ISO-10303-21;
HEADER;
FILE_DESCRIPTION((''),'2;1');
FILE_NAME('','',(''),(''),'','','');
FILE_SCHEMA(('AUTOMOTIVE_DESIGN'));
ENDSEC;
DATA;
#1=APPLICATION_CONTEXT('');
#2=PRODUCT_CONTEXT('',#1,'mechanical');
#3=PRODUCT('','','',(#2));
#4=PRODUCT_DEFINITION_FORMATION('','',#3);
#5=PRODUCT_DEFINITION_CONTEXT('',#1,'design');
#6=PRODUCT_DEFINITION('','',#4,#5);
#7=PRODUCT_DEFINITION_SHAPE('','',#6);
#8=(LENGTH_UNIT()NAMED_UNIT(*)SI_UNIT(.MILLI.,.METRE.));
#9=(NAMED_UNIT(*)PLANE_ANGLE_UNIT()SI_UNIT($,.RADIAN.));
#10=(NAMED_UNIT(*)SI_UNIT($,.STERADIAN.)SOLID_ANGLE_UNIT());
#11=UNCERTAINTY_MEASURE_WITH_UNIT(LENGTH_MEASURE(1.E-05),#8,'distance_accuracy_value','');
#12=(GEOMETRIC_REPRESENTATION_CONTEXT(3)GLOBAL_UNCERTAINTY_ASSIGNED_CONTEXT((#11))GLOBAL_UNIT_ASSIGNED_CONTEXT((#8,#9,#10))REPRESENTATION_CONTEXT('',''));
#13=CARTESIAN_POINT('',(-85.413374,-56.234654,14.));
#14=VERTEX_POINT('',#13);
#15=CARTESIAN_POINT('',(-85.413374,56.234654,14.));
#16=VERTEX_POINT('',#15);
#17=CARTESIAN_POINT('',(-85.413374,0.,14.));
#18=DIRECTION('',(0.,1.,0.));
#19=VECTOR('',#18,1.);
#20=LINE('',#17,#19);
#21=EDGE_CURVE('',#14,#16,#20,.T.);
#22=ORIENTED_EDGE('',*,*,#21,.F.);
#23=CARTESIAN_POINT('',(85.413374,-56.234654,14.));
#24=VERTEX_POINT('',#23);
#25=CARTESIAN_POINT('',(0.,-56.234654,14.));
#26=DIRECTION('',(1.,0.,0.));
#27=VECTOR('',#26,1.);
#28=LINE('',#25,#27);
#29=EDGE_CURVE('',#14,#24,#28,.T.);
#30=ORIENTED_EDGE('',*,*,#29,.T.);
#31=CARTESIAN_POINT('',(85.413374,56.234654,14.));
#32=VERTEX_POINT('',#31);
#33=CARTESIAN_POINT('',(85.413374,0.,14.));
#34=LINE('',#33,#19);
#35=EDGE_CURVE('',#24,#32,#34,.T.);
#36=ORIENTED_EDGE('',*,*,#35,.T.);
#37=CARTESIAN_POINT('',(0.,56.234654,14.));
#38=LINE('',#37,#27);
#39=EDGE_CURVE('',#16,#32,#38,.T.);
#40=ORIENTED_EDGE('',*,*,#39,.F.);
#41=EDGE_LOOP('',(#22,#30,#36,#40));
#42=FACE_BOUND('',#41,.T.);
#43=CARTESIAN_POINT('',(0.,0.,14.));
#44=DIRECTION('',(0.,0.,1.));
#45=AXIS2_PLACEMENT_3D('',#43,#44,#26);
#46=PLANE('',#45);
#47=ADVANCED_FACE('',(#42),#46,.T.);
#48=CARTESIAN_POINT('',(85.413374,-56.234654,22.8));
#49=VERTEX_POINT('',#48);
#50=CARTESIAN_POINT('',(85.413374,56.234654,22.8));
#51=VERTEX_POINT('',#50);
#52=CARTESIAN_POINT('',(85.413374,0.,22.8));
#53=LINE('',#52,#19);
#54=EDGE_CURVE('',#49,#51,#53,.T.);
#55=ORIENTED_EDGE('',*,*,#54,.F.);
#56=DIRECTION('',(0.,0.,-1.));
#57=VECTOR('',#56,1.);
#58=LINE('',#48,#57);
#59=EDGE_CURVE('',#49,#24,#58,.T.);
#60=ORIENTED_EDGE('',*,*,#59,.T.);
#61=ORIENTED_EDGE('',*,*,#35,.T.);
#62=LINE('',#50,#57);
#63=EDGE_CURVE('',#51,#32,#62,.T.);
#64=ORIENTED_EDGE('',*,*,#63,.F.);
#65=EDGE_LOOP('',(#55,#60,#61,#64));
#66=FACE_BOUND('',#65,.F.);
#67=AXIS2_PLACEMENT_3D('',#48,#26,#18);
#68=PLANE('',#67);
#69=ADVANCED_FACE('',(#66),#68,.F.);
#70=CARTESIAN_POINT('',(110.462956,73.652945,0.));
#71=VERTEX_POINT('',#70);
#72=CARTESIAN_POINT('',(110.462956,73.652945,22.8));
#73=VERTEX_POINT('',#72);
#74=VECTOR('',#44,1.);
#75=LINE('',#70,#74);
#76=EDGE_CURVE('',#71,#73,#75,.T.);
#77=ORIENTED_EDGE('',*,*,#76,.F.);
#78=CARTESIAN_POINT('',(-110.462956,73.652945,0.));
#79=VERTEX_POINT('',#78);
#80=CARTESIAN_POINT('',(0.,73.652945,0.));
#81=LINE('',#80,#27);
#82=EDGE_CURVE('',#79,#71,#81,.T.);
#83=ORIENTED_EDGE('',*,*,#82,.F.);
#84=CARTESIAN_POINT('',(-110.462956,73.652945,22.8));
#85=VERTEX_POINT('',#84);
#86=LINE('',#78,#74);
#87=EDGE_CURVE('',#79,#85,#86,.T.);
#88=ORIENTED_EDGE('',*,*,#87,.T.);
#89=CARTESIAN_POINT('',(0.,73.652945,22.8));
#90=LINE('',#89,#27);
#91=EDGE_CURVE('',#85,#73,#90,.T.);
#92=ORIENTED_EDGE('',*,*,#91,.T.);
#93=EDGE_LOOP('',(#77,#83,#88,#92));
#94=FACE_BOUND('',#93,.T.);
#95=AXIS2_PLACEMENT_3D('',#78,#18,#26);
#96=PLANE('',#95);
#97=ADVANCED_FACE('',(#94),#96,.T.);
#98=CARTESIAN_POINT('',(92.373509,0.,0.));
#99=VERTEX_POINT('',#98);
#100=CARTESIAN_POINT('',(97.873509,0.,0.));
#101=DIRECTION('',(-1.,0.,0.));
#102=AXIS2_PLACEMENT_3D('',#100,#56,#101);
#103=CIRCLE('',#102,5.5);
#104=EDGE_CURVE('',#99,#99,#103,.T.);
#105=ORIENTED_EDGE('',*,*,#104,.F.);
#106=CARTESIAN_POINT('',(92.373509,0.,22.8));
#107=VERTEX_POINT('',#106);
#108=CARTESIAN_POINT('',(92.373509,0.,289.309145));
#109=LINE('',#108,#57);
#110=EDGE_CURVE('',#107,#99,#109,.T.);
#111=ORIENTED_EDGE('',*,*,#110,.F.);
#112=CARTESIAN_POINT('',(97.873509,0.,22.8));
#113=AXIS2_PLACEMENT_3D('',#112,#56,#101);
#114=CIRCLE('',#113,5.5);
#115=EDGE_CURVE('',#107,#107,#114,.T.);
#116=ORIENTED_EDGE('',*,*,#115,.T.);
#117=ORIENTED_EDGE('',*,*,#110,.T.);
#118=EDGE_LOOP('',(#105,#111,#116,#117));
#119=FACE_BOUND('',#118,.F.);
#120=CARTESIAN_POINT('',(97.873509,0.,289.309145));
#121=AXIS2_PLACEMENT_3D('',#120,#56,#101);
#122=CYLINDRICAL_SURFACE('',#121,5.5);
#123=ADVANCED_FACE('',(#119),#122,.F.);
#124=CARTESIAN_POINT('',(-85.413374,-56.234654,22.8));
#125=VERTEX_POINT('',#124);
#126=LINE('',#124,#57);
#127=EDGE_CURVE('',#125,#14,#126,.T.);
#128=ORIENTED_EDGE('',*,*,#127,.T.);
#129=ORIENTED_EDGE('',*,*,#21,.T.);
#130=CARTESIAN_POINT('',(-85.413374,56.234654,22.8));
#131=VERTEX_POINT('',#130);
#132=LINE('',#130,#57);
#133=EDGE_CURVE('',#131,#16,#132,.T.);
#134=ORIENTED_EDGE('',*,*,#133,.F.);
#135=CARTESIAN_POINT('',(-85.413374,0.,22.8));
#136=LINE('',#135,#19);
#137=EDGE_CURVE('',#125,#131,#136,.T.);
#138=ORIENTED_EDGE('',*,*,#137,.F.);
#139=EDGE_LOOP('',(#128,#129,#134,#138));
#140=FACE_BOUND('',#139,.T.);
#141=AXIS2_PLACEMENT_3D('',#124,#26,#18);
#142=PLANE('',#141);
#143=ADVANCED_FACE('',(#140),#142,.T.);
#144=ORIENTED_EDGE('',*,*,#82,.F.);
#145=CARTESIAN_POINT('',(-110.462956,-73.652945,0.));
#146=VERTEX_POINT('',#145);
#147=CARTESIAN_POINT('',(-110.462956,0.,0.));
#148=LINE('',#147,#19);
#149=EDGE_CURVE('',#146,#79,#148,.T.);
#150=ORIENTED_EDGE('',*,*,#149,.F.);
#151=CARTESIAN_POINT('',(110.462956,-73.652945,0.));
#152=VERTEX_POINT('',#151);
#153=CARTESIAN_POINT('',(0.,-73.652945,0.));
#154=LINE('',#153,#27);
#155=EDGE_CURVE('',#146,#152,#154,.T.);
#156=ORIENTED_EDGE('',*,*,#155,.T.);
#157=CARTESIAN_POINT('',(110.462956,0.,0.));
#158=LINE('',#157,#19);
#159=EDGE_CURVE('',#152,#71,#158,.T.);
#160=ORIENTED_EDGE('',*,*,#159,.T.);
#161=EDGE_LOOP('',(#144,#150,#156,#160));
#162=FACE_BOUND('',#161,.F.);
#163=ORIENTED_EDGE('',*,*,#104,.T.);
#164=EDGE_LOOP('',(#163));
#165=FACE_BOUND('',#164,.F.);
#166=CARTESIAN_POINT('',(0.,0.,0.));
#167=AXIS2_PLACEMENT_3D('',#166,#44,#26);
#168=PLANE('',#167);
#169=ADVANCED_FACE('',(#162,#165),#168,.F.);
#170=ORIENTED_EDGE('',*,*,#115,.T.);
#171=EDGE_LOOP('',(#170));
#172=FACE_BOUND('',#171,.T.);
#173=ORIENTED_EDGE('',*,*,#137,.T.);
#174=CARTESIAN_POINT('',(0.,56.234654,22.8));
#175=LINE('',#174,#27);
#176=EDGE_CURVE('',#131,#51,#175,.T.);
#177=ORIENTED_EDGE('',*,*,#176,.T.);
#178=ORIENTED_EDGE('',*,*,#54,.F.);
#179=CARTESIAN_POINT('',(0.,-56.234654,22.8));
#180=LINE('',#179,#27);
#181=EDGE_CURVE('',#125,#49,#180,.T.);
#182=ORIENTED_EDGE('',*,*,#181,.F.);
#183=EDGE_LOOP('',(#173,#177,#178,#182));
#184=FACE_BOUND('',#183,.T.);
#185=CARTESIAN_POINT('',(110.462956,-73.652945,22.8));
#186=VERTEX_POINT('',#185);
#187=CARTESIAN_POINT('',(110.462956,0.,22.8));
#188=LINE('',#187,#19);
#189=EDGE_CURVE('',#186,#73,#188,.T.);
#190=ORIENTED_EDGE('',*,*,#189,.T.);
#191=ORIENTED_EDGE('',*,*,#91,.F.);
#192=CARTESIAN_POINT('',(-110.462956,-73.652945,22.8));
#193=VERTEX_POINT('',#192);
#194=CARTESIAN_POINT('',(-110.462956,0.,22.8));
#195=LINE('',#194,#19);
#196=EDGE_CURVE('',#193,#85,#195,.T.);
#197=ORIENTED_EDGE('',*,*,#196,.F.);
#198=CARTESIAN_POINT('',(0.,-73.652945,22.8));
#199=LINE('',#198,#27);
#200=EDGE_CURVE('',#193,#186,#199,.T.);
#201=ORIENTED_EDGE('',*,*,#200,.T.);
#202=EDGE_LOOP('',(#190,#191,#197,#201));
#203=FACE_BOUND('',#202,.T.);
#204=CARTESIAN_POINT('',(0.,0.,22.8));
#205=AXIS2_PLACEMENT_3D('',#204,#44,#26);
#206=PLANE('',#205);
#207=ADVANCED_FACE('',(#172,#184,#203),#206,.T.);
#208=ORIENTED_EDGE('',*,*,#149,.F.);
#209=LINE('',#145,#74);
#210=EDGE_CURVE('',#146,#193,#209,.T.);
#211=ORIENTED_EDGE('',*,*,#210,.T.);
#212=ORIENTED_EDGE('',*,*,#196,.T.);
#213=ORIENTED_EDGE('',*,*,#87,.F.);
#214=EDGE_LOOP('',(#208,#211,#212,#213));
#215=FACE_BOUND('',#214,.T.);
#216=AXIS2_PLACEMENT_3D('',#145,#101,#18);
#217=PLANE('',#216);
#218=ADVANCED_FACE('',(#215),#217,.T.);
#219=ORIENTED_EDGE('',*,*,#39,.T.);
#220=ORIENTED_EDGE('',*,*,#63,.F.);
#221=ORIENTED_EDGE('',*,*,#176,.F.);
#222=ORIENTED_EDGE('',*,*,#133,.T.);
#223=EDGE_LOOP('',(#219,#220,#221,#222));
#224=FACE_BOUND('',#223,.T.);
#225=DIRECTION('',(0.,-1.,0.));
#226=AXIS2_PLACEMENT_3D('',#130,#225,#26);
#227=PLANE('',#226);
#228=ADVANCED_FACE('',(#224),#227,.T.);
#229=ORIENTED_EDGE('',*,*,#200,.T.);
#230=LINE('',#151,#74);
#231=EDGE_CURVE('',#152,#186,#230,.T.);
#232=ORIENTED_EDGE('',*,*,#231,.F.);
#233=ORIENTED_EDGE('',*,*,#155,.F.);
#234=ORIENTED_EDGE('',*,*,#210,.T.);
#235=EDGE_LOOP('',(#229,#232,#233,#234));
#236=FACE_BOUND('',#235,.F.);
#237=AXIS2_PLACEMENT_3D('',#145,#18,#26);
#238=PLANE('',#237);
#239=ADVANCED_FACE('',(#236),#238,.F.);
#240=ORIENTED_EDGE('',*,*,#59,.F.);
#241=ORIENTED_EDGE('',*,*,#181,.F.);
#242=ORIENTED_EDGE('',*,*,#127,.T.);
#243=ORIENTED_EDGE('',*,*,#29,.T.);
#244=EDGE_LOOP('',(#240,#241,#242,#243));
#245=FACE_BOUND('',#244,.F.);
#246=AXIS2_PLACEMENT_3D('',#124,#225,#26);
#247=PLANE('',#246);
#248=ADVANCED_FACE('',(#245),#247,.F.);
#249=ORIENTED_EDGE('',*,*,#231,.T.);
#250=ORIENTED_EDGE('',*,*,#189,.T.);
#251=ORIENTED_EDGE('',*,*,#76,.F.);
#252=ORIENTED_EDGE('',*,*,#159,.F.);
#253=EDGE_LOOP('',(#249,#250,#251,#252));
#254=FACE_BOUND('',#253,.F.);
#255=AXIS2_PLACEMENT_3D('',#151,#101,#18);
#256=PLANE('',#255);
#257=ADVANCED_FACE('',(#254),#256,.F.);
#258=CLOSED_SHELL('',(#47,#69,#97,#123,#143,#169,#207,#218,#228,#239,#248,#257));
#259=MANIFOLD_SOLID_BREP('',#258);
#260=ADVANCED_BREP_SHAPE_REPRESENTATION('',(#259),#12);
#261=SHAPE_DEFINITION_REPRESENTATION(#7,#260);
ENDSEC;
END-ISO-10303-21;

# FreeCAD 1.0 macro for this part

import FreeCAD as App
import Part
import Sketcher
from FreeCAD import Vector
Q = App.Units.Quantity

doc = App.newDocument("Part")
params = doc.addObject("Spreadsheet::Sheet", "Params")
for row, (alias, value) in enumerate([
    ("pad1_length", "22.8 mm"),
    ("pocket1_length", "8.8 mm"),
    ("sketch3_diameter", "11 mm"),
    ("hole_diameter", "11 mm"),
], start=1):
    params.set(f"A{row}", alias)
    params.set(f"B{row}", "=" + value)
    params.setAlias(f"B{row}", alias)

body = doc.addObject("PartDesign::Body", "Body")

# Sketch on XY plane
sketch1 = doc.addObject("Sketcher::SketchObject", "Sketch")
body.addObject(sketch1)
sketch1.AttachmentSupport = (doc.XY_Plane, [""])
sketch1.MapMode = "FlatFace"
sketch1.addGeometry(Part.LineSegment(Vector(-110, 74, 0), Vector(-110, -74, 0)), False)
sketch1.addGeometry(Part.LineSegment(Vector(-110, -74, 0), Vector(110, -74, 0)), False)
sketch1.addGeometry(Part.LineSegment(Vector(110, -74, 0), Vector(110, 74, 0)), False)
sketch1.addGeometry(Part.LineSegment(Vector(110, 74, 0), Vector(-110, 74, 0)), False)
sketch1.addConstraint(Sketcher.Constraint("Coincident", 0, 2, 1, 1))
sketch1.addConstraint(Sketcher.Constraint("Coincident", 1, 2, 2, 1))
sketch1.addConstraint(Sketcher.Constraint("Coincident", 2, 2, 3, 1))
sketch1.addConstraint(Sketcher.Constraint("Coincident", 3, 2, 0, 1))
sketch1.addConstraint(Sketcher.Constraint("Vertical", 0))
sketch1.addConstraint(Sketcher.Constraint("Horizontal", 1))
sketch1.addConstraint(Sketcher.Constraint("Vertical", 2))
sketch1.addConstraint(Sketcher.Constraint("Horizontal", 3))
sketch1.addConstraint(Sketcher.Constraint("Symmetric", 0, 2, 2, 2, -1, 1))
sketch1.addConstraint(Sketcher.Constraint("DistanceY", 0, 2, 0, 1, Q("147.305891 mm")))
sketch1.addConstraint(Sketcher.Constraint("DistanceX", 1, 1, 1, 2, Q("220.925912 mm")))
pad1 = doc.addObject("PartDesign::Pad", "Pad")
body.addObject(pad1)
pad1.Profile = sketch1
pad1.setExpression("Length", "Params.pad1_length")

# Sketch on XY plane
sketch2 = doc.addObject("Sketcher::SketchObject", "Sketch001")
body.addObject(sketch2)
sketch2.AttachmentSupport = (doc.XY_Plane, [""])
sketch2.MapMode = "FlatFace"
sketch2.AttachmentOffset = App.Placement(Vector(0, 0, 22.8), App.Rotation())
sketch2.addGeometry(Part.LineSegment(Vector(-85, 56, 0), Vector(-85, -56, 0)), False)
sketch2.addGeometry(Part.LineSegment(Vector(-85, -56, 0), Vector(85, -56, 0)), False)
sketch2.addGeometry(Part.LineSegment(Vector(85, -56, 0), Vector(85, 56, 0)), False)
sketch2.addGeometry(Part.LineSegment(Vector(85, 56, 0), Vector(-85, 56, 0)), False)
sketch2.addConstraint(Sketcher.Constraint("Coincident", 0, 2, 1, 1))
sketch2.addConstraint(Sketcher.Constraint("Coincident", 1, 2, 2, 1))
sketch2.addConstraint(Sketcher.Constraint("Coincident", 2, 2, 3, 1))
sketch2.addConstraint(Sketcher.Constraint("Coincident", 3, 2, 0, 1))
sketch2.addConstraint(Sketcher.Constraint("Vertical", 0))
sketch2.addConstraint(Sketcher.Constraint("Horizontal", 1))
sketch2.addConstraint(Sketcher.Constraint("Vertical", 2))
sketch2.addConstraint(Sketcher.Constraint("Horizontal", 3))
sketch2.addConstraint(Sketcher.Constraint("Symmetric", 0, 2, 2, 2, -1, 1))
sketch2.addConstraint(Sketcher.Constraint("DistanceX", 1, 1, 1, 2, Q("170.826748 mm")))
sketch2.addConstraint(Sketcher.Constraint("DistanceY", 0, 2, 0, 1, Q("112.469309 mm")))
pocket1 = doc.addObject("PartDesign::Pocket", "Pocket")
body.addObject(pocket1)
pocket1.Profile = sketch2
pocket1.setExpression("Length", "Params.pocket1_length")

# Sketch on XY plane
sketch3 = doc.addObject("Sketcher::SketchObject", "Sketch002")
body.addObject(sketch3)
sketch3.AttachmentSupport = (doc.XY_Plane, [""])
sketch3.MapMode = "FlatFace"
sketch3.AttachmentOffset = App.Placement(Vector(0, 0, 22.8), App.Rotation())
sketch3.addGeometry(Part.Circle(Vector(98, 0, 0), Vector(0, 0, 1), 6), False)
sketch3.addConstraint(Sketcher.Constraint("PointOnObject", 0, 3, -1))
sketch3.addConstraint(Sketcher.Constraint("Diameter", 0, Q("11 mm")))
sketch3.addConstraint(Sketcher.Constraint("DistanceX", -1, 1, 0, 3, Q("97.873509 mm")))
sketch3.setExpression("Constraints[1]", "Params.sketch3_diameter")
doc.recompute()
hole = doc.addObject("PartDesign::Hole", "Hole")
body.addObject(hole)
hole.Profile = sketch3
hole.ThreadType = "None"
hole.setExpression("Diameter", "Params.hole_diameter")
hole.DepthType = "ThroughAll"

doc.recompute()
